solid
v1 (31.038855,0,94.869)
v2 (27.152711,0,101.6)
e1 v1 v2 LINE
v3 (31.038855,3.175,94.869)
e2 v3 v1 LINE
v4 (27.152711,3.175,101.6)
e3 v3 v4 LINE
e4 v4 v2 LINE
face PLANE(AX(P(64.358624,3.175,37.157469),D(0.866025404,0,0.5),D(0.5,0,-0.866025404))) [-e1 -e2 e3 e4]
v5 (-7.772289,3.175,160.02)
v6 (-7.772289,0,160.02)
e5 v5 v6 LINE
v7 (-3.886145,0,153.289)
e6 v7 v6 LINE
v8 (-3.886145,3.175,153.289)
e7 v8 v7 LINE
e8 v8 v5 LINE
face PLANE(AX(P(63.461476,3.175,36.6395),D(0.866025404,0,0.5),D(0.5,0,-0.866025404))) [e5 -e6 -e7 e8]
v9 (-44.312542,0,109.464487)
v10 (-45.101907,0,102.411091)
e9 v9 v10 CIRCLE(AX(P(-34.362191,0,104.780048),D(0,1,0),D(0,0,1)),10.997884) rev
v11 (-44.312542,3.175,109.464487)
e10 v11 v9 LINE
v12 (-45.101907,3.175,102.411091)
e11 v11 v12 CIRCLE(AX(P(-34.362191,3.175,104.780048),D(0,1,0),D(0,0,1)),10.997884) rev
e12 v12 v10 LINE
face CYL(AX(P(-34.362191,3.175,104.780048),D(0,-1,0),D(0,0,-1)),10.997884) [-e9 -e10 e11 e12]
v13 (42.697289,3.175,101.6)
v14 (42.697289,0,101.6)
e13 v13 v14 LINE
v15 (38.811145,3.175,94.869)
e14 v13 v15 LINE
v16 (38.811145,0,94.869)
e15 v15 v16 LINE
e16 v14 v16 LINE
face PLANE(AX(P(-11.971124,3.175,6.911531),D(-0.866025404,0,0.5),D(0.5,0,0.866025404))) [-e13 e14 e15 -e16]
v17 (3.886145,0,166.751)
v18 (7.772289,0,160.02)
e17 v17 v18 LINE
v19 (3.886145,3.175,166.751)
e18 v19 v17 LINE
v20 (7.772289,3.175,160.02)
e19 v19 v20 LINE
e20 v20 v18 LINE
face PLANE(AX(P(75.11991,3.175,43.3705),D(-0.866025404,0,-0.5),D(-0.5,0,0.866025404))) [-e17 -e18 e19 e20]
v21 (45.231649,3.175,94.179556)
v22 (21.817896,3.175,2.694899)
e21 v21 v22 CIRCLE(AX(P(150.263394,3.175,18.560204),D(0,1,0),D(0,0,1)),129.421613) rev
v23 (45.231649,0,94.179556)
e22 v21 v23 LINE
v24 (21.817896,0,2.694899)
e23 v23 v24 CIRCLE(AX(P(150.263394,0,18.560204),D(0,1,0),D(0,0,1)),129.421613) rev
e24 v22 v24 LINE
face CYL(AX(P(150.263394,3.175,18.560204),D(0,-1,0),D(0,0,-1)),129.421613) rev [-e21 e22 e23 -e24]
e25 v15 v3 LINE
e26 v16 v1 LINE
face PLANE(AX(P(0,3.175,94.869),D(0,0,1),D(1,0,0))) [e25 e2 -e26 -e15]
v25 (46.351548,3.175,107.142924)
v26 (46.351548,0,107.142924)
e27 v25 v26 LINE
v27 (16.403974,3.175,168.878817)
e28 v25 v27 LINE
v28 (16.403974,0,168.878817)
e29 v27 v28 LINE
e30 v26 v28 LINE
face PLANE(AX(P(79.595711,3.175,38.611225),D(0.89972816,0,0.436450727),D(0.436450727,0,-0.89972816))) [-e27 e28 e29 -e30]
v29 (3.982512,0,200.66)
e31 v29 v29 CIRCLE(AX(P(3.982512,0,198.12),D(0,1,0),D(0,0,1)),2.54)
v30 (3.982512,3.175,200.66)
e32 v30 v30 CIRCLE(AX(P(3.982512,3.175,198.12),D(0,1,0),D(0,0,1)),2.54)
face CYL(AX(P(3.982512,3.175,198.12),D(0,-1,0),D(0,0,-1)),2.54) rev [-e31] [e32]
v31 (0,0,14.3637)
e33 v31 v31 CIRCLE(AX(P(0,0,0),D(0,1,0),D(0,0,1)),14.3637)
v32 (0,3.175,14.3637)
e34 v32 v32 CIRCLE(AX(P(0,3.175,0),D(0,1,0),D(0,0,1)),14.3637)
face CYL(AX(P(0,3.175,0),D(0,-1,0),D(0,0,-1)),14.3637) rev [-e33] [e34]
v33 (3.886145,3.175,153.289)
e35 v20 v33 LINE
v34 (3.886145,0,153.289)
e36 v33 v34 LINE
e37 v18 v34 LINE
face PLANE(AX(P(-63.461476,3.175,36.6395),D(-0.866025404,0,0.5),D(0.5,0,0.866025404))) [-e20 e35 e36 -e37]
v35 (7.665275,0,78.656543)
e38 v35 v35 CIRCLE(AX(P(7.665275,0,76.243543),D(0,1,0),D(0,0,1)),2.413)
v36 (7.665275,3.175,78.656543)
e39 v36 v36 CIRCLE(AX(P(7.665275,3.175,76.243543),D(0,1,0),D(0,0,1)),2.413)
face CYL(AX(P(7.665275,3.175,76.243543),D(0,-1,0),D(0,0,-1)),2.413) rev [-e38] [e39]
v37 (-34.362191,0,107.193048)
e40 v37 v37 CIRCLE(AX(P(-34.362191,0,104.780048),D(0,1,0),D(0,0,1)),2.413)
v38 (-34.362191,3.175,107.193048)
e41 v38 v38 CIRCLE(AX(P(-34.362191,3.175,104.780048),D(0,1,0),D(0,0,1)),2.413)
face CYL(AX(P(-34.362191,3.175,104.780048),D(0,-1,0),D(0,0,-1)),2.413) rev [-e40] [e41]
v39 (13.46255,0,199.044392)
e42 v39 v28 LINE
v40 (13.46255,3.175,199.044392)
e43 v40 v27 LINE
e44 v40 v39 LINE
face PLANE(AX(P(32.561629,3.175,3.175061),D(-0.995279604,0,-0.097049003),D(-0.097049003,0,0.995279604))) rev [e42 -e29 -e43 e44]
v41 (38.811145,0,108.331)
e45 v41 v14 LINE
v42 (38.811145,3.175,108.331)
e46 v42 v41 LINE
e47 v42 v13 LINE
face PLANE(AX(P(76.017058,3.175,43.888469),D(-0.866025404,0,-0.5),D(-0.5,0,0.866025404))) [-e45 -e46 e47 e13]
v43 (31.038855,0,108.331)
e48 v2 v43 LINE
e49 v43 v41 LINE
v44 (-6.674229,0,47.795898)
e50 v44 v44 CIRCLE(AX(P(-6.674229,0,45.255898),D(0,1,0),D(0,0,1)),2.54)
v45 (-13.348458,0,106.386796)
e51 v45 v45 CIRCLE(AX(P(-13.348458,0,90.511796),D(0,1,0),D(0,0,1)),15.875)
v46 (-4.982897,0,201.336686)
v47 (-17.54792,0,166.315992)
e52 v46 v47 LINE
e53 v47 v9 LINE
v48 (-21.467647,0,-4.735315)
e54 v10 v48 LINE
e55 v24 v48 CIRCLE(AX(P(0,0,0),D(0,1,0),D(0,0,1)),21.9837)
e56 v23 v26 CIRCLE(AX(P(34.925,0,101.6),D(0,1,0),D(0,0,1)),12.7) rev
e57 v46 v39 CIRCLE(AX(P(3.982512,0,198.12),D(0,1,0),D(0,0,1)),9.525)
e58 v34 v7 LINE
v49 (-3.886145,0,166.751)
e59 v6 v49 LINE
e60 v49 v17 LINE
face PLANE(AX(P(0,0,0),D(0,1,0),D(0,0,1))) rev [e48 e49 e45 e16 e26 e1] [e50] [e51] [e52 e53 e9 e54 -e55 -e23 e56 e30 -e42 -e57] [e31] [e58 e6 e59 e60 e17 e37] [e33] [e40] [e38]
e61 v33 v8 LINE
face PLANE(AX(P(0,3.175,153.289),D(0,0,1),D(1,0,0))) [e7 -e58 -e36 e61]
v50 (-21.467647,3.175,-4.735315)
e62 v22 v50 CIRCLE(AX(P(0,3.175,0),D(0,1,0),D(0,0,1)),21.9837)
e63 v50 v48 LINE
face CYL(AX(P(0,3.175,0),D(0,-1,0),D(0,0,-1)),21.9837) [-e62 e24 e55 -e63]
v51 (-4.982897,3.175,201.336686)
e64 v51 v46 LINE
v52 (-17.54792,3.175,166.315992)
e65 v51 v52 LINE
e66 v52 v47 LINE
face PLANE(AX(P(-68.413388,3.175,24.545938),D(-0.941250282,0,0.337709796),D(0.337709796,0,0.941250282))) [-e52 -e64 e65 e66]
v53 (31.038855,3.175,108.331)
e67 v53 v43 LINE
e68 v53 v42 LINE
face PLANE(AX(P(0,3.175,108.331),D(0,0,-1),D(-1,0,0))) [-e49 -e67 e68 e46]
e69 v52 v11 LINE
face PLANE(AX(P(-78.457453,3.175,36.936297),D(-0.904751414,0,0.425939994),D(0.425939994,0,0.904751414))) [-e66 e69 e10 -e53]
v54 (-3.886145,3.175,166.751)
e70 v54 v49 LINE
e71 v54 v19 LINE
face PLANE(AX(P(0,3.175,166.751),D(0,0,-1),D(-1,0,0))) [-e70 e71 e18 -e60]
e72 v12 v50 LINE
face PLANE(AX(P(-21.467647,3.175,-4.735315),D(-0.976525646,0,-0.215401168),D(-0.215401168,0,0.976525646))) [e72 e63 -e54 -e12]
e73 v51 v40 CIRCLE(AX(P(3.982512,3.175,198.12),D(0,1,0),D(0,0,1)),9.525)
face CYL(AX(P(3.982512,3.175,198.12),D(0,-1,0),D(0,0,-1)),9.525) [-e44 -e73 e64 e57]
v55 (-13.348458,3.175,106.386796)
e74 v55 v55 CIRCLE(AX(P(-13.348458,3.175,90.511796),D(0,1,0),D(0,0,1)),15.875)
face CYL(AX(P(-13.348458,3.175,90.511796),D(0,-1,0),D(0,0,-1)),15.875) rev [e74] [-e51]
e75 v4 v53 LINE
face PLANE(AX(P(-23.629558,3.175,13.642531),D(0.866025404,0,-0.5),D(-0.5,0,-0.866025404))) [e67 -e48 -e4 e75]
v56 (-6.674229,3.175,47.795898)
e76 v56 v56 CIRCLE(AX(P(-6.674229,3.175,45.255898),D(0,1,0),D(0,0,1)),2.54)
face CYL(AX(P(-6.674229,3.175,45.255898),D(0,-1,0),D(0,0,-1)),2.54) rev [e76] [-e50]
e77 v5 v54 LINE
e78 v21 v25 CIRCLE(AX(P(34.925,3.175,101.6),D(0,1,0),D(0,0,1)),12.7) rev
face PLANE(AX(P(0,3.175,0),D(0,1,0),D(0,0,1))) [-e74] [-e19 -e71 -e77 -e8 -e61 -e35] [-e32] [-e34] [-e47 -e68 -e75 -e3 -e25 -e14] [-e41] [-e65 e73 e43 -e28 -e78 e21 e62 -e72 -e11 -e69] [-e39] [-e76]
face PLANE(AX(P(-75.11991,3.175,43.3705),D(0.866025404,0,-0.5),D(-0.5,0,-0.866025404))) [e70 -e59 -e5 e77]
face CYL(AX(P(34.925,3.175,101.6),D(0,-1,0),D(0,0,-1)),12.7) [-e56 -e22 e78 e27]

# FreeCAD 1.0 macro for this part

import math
import FreeCAD as App
import Part
import Sketcher
from FreeCAD import Vector
Q = App.Units.Quantity

doc = App.newDocument("Part")
body = doc.addObject("PartDesign::Body", "Body")

# Sketch on XZ plane
sketch1 = body.newObject("Sketcher::SketchObject", "Sketch")
sketch1.AttachmentSupport = (doc.getObject("XZ_Plane"), [""])
sketch1.MapMode = "FlatFace"
sketch1.addGeometry(Part.ArcOfCircle(Part.Circle(Vector(0, 0, 0), Vector(0, 0, 1), 21.9837), math.radians(-167.560936), math.radians(7.041384)), False)
sketch1.addGeometry(Part.LineSegment(Vector(-21.467647, -4.735315, 0), Vector(-45.101907, 102.411091, 0)), False)
sketch1.addGeometry(Part.ArcOfCircle(Part.Circle(Vector(-34.362191, 104.780048, 0), Vector(0, 0, 1), 10.997884), math.radians(154.789823), math.radians(192.439064)), False)
sketch1.addGeometry(Part.LineSegment(Vector(-44.312542, 109.464487, 0), Vector(-17.54792, 166.315992, 0)), False)
sketch1.addGeometry(Part.LineSegment(Vector(-17.54792, 166.315992, 0), Vector(-4.982897, 201.336686, 0)), False)
sketch1.addGeometry(Part.ArcOfCircle(Part.Circle(Vector(3.982512, 198.12, 0), Vector(0, 0, 1), 9.525), math.radians(5.569264), math.radians(160.262596)), False)
sketch1.addGeometry(Part.LineSegment(Vector(13.46255, 199.044392, 0), Vector(16.403974, 168.878817, 0)), False)
sketch1.addGeometry(Part.LineSegment(Vector(16.403974, 168.878817, 0), Vector(46.351548, 107.142924, 0)), False)
sketch1.addGeometry(Part.ArcOfCircle(Part.Circle(Vector(34.925, 101.6, 0), Vector(0, 0, 1), 12.7), math.radians(-35.752628), math.radians(25.877642)), False)
sketch1.addGeometry(Part.ArcOfCircle(Part.Circle(Vector(150.263394, 18.560204, 0), Vector(0, 0, 1), 129.421613), math.radians(144.247372), math.radians(187.041384)), False)
sketch1.addGeometry(Part.LineSegment(Vector(-3.886145, 166.751, 0), Vector(-7.772289, 160.02, 0)), False)
sketch1.addGeometry(Part.LineSegment(Vector(-7.772289, 160.02, 0), Vector(-3.886145, 153.289, 0)), False)
sketch1.addGeometry(Part.LineSegment(Vector(-3.886145, 153.289, 0), Vector(3.886145, 153.289, 0)), False)
sketch1.addGeometry(Part.LineSegment(Vector(3.886145, 153.289, 0), Vector(7.772289, 160.02, 0)), False)
sketch1.addGeometry(Part.LineSegment(Vector(7.772289, 160.02, 0), Vector(3.886145, 166.751, 0)), False)
sketch1.addGeometry(Part.LineSegment(Vector(3.886145, 166.751, 0), Vector(-3.886145, 166.751, 0)), False)
sketch1.addGeometry(Part.Circle(Vector(-34.362191, 104.780048, 0), Vector(0, 0, 1), 2.413), False)
sketch1.addGeometry(Part.Circle(Vector(3.982512, 198.12, 0), Vector(0, 0, 1), 2.54), False)
sketch1.addGeometry(Part.LineSegment(Vector(38.811145, 94.869, 0), Vector(42.697289, 101.6, 0)), False)
sketch1.addGeometry(Part.LineSegment(Vector(42.697289, 101.6, 0), Vector(38.811145, 108.331, 0)), False)
sketch1.addGeometry(Part.LineSegment(Vector(38.811145, 108.331, 0), Vector(31.038855, 108.331, 0)), False)
sketch1.addGeometry(Part.LineSegment(Vector(31.038855, 108.331, 0), Vector(27.152711, 101.6, 0)), False)
sketch1.addGeometry(Part.LineSegment(Vector(27.152711, 101.6, 0), Vector(31.038855, 94.869, 0)), False)
sketch1.addGeometry(Part.LineSegment(Vector(31.038855, 94.869, 0), Vector(38.811145, 94.869, 0)), False)
sketch1.addGeometry(Part.Circle(Vector(-13.348458, 90.511796, 0), Vector(0, 0, 1), 15.875), False)
sketch1.addGeometry(Part.Circle(Vector(-6.674229, 45.255898, 0), Vector(0, 0, 1), 2.54), False)
sketch1.addGeometry(Part.Circle(Vector(0, 0, 0), Vector(0, 0, 1), 14.3637), False)
sketch1.addGeometry(Part.Circle(Vector(7.665275, 76.243543, 0), Vector(0, 0, 1), 2.413), False)
sketch1.addConstraint(Sketcher.Constraint("Tangent", 0, 1, 1, 1))
sketch1.addConstraint(Sketcher.Constraint("Tangent", 1, 2, 2, 2))
sketch1.addConstraint(Sketcher.Constraint("Tangent", 2, 1, 3, 1))
sketch1.addConstraint(Sketcher.Constraint("Coincident", 3, 2, 4, 1))
sketch1.addConstraint(Sketcher.Constraint("Tangent", 4, 2, 5, 2))
sketch1.addConstraint(Sketcher.Constraint("Tangent", 5, 1, 6, 1))
sketch1.addConstraint(Sketcher.Constraint("Coincident", 6, 2, 7, 1))
sketch1.addConstraint(Sketcher.Constraint("Tangent", 7, 2, 8, 2))
sketch1.addConstraint(Sketcher.Constraint("Tangent", 8, 1, 9, 1))
sketch1.addConstraint(Sketcher.Constraint("Tangent", 9, 2, 0, 2))
sketch1.addConstraint(Sketcher.Constraint("Coincident", 10, 2, 11, 1))
sketch1.addConstraint(Sketcher.Constraint("Coincident", 11, 2, 12, 1))
sketch1.addConstraint(Sketcher.Constraint("Coincident", 12, 2, 13, 1))
sketch1.addConstraint(Sketcher.Constraint("Coincident", 13, 2, 14, 1))
sketch1.addConstraint(Sketcher.Constraint("Coincident", 14, 2, 15, 1))
sketch1.addConstraint(Sketcher.Constraint("Coincident", 15, 2, 10, 1))
sketch1.addConstraint(Sketcher.Constraint("Coincident", 18, 2, 19, 1))
sketch1.addConstraint(Sketcher.Constraint("Coincident", 19, 2, 20, 1))
sketch1.addConstraint(Sketcher.Constraint("Coincident", 20, 2, 21, 1))
sketch1.addConstraint(Sketcher.Constraint("Coincident", 21, 2, 22, 1))
sketch1.addConstraint(Sketcher.Constraint("Coincident", 22, 2, 23, 1))
sketch1.addConstraint(Sketcher.Constraint("Coincident", 23, 2, 18, 1))
sketch1.addConstraint(Sketcher.Constraint("Horizontal", 12))
sketch1.addConstraint(Sketcher.Constraint("Horizontal", 15))
sketch1.addConstraint(Sketcher.Constraint("Horizontal", 20))
sketch1.addConstraint(Sketcher.Constraint("Horizontal", 23))
sketch1.addConstraint(Sketcher.Constraint("Coincident", 0, 3, -1, 1))
sketch1.addConstraint(Sketcher.Constraint("Coincident", 26, 3, -1, 1))
sketch1.addConstraint(Sketcher.Constraint("Coincident", 16, 3, 2, 3))
sketch1.addConstraint(Sketcher.Constraint("Coincident", 17, 3, 5, 3))
sketch1.addConstraint(Sketcher.Constraint("Equal", 17, 25))
sketch1.addConstraint(Sketcher.Constraint("Equal", 16, 27))
sketch1.addConstraint(Sketcher.Constraint("Symmetric", 10, 2, 13, 2, -2))
sketch1.addConstraint(Sketcher.Constraint("Parallel", 10, 13))
sketch1.addConstraint(Sketcher.Constraint("Parallel", 11, 14))
sketch1.addConstraint(Sketcher.Constraint("Parallel", 13, 18))
sketch1.addConstraint(Sketcher.Constraint("Parallel", 14, 19))
sketch1.addConstraint(Sketcher.Constraint("Parallel", 18, 21))
sketch1.addConstraint(Sketcher.Constraint("Parallel", 19, 22))
sketch1.addConstraint(Sketcher.Constraint("Horizontal", 8, 3, 18, 2))
sketch1.addConstraint(Sketcher.Constraint("Horizontal", 18, 2, 21, 2))
sketch1.addConstraint(Sketcher.Constraint("Vertical", 12, 2, 14, 2))
sketch1.addConstraint(Sketcher.Constraint("Vertical", 11, 2, 15, 2))
sketch1.addConstraint(Sketcher.Constraint("Vertical", 20, 2, 22, 2))
sketch1.addConstraint(Sketcher.Constraint("Equal", 15, 20))
sketch1.addConstraint(Sketcher.Constraint("Equal", 14, 18))
sketch1.addConstraint(Sketcher.Constraint("Diameter", 17, Q("0.2 in")))
sketch1.addConstraint(Sketcher.Constraint("Radius", 8, Q("0.5 in")))
sketch1.addConstraint(Sketcher.Constraint("Diameter", 16, Q("0.19 in")))
sketch1.addConstraint(Sketcher.Constraint("Diameter", 24, Q("1.25 in")))
sketch1.addConstraint(Sketcher.Constraint("Diameter", 26, Q("1.131 in")))
sketch1.addConstraint(Sketcher.Constraint("DistanceY", -1, 1, 8, 3, Q("4 in")))
sketch1.addConstraint(Sketcher.Constraint("Angle", 10, Q("-120 deg")))
sketch1.addConstraint(Sketcher.Constraint("Radius", 5, Q("0.375 in")))
sketch1.addConstraint(Sketcher.Constraint("DistanceY", -1, 1, 5, 3, Q("7.8 in")))
sketch1.addConstraint(Sketcher.Constraint("DistanceY", -1, 1, 10, 2, Q("6.3 in")))
sketch1.addConstraint(Sketcher.Constraint("Radius", 0, Q("0.8655 in")))
sketch1.addConstraint(Sketcher.Constraint("DistanceY", 12, 2, 14, 2, Q("0.53 in")))
sketch1.addConstraint(Sketcher.Constraint("DistanceX", -1, 1, 8, 3, Q("1.375 in")))
sketch1.addConstraint(Sketcher.Constraint("Radius", 2, Q("10.997884 mm")))
sketch1.addConstraint(Sketcher.Constraint("Radius", 9, Q("129.421613 mm")))
sketch1.addConstraint(Sketcher.Constraint("DistanceY", 24, 3, 8, 1, Q("0.1444 in")))
sketch1.addConstraint(Sketcher.Constraint("DistanceX", 12, 1, 12, 2, Q("7.772289 mm")))
sketch1.addConstraint(Sketcher.Constraint("DistanceY", 2, 1, 4, 2, Q("91.872199 mm")))
sketch1.addConstraint(Sketcher.Constraint("DistanceY", 3, 2, 5, 1, Q("32.7284 mm")))
sketch1.addConstraint(Sketcher.Constraint("DistanceX", 8, 1, 7, 2, Q("1.119898 mm")))
sketch1.addConstraint(Sketcher.Constraint("DistanceY", 9, 2, 25, 3, Q("42.560999 mm")))
sketch1.addConstraint(Sketcher.Constraint("DistanceX", 10, 2, 5, 3, Q("11.754801 mm")))
sketch1.addConstraint(Sketcher.Constraint("Distance", 1, Q("109.72206 mm")))
sketch1.addConstraint(Sketcher.Constraint("Distance", 4, Q("37.206569 mm")))
sketch1.addConstraint(Sketcher.Constraint("Distance", 7, Q("68.616162 mm")))
sketch1.addConstraint(Sketcher.Constraint("DistanceX", 24, 3, -1, 1, Q("13.348458 mm")))
sketch1.addConstraint(Sketcher.Constraint("DistanceX", 25, 3, -1, 1, Q("6.674229 mm")))
sketch1.addConstraint(Sketcher.Constraint("DistanceX", -1, 1, 18, 2, Q("42.697289 mm")))
sketch1.addConstraint(Sketcher.Constraint("DistanceX", 0, 1, 27, 3, Q("29.132922 mm")))
sketch1.addConstraint(Sketcher.Constraint("DistanceY", 27, 3, 7, 2, Q("30.899381 mm")))
pad1 = body.newObject("PartDesign::Pad", "Pad")
pad1.Profile = sketch1
pad1.Length = Q("0.125 in")
pad1.Reversed = True

doc.recompute()
